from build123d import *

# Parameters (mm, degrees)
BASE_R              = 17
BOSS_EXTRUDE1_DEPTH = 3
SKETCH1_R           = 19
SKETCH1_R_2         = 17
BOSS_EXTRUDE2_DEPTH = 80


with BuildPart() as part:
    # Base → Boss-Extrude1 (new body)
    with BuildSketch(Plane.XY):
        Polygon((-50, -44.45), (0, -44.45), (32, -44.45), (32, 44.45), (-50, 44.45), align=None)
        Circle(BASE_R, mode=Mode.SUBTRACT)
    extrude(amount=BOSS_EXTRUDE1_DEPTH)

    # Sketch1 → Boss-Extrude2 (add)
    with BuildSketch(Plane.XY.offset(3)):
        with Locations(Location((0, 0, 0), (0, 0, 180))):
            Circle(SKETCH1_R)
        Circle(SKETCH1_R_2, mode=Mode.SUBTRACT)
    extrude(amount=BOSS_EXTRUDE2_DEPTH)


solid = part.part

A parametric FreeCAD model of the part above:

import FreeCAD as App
import Part
import Sketcher

V = App.Vector
Q = App.Units.Quantity

doc = App.newDocument("Part")
body = doc.addObject("PartDesign::Body", "Body")

sketch1 = body.newObject("Sketcher::SketchObject", "Sketch")
sketch1.AttachmentSupport = (doc.getObject("XY_Plane"), [""])
sketch1.MapMode = "FlatFace"
sketch1.addGeometry([
    Part.LineSegment(V(-50, -44, 0), V(32, -44, 0)),
    Part.LineSegment(V(32, -44, 0), V(32, 44, 0)),
    Part.LineSegment(V(32, 44, 0), V(-50, 44, 0)),
    Part.LineSegment(V(-50, 44, 0), V(-50, -44, 0)),
    Part.Circle(V(0, 0, 0), V(0, 0, 1), 17),
], False)
sketch1.addConstraint([
    Sketcher.Constraint("Coincident", 0, 2, 1, 1),
    Sketcher.Constraint("Coincident", 1, 2, 2, 1),
    Sketcher.Constraint("Coincident", 2, 2, 3, 1),
    Sketcher.Constraint("Coincident", 3, 2, 0, 1),
    Sketcher.Constraint("Horizontal", 0),
    Sketcher.Constraint("Vertical", 1),
    Sketcher.Constraint("Horizontal", 2),
    Sketcher.Constraint("Vertical", 3),
    Sketcher.Constraint("Coincident", 4, 3, -1, 1),
    Sketcher.Constraint("Diameter", 4, Q("34 mm")),
    Sketcher.Constraint("DistanceX", 0, 1, 0, 2, Q("82 mm")),
    Sketcher.Constraint("DistanceY", 1, 1, 1, 2, Q("88.9 mm")),
    Sketcher.Constraint("DistanceX", -1, 1, 0, 2, Q("32 mm")),
    Sketcher.Constraint("DistanceY", 0, 2, -1, 1, Q("44.45 mm")),
])
pad1 = body.newObject("PartDesign::Pad", "Pad")
pad1.Profile = sketch1
pad1.Length = 3

sketch2 = body.newObject("Sketcher::SketchObject", "Sketch001")
sketch2.AttachmentSupport = (doc.getObject("XY_Plane"), [""])
sketch2.MapMode = "FlatFace"
sketch2.AttachmentOffset = App.Placement(V(0, 0, 3), App.Rotation())
sketch2.addGeometry([
    Part.Circle(V(0, 0, 0), V(0, 0, 1), 19),
    Part.Circle(V(0, 0, 0), V(0, 0, 1), 17),
], False)
sketch2.addConstraint([
    Sketcher.Constraint("Coincident", 0, 3, -1, 1),
    Sketcher.Constraint("Coincident", 1, 3, -1, 1),
    Sketcher.Constraint("Diameter", 0, Q("38 mm")),
    Sketcher.Constraint("Diameter", 1, Q("34 mm")),
])
pad2 = body.newObject("PartDesign::Pad", "Pad001")
pad2.Profile = sketch2
pad2.Length = 80

doc.recompute()
